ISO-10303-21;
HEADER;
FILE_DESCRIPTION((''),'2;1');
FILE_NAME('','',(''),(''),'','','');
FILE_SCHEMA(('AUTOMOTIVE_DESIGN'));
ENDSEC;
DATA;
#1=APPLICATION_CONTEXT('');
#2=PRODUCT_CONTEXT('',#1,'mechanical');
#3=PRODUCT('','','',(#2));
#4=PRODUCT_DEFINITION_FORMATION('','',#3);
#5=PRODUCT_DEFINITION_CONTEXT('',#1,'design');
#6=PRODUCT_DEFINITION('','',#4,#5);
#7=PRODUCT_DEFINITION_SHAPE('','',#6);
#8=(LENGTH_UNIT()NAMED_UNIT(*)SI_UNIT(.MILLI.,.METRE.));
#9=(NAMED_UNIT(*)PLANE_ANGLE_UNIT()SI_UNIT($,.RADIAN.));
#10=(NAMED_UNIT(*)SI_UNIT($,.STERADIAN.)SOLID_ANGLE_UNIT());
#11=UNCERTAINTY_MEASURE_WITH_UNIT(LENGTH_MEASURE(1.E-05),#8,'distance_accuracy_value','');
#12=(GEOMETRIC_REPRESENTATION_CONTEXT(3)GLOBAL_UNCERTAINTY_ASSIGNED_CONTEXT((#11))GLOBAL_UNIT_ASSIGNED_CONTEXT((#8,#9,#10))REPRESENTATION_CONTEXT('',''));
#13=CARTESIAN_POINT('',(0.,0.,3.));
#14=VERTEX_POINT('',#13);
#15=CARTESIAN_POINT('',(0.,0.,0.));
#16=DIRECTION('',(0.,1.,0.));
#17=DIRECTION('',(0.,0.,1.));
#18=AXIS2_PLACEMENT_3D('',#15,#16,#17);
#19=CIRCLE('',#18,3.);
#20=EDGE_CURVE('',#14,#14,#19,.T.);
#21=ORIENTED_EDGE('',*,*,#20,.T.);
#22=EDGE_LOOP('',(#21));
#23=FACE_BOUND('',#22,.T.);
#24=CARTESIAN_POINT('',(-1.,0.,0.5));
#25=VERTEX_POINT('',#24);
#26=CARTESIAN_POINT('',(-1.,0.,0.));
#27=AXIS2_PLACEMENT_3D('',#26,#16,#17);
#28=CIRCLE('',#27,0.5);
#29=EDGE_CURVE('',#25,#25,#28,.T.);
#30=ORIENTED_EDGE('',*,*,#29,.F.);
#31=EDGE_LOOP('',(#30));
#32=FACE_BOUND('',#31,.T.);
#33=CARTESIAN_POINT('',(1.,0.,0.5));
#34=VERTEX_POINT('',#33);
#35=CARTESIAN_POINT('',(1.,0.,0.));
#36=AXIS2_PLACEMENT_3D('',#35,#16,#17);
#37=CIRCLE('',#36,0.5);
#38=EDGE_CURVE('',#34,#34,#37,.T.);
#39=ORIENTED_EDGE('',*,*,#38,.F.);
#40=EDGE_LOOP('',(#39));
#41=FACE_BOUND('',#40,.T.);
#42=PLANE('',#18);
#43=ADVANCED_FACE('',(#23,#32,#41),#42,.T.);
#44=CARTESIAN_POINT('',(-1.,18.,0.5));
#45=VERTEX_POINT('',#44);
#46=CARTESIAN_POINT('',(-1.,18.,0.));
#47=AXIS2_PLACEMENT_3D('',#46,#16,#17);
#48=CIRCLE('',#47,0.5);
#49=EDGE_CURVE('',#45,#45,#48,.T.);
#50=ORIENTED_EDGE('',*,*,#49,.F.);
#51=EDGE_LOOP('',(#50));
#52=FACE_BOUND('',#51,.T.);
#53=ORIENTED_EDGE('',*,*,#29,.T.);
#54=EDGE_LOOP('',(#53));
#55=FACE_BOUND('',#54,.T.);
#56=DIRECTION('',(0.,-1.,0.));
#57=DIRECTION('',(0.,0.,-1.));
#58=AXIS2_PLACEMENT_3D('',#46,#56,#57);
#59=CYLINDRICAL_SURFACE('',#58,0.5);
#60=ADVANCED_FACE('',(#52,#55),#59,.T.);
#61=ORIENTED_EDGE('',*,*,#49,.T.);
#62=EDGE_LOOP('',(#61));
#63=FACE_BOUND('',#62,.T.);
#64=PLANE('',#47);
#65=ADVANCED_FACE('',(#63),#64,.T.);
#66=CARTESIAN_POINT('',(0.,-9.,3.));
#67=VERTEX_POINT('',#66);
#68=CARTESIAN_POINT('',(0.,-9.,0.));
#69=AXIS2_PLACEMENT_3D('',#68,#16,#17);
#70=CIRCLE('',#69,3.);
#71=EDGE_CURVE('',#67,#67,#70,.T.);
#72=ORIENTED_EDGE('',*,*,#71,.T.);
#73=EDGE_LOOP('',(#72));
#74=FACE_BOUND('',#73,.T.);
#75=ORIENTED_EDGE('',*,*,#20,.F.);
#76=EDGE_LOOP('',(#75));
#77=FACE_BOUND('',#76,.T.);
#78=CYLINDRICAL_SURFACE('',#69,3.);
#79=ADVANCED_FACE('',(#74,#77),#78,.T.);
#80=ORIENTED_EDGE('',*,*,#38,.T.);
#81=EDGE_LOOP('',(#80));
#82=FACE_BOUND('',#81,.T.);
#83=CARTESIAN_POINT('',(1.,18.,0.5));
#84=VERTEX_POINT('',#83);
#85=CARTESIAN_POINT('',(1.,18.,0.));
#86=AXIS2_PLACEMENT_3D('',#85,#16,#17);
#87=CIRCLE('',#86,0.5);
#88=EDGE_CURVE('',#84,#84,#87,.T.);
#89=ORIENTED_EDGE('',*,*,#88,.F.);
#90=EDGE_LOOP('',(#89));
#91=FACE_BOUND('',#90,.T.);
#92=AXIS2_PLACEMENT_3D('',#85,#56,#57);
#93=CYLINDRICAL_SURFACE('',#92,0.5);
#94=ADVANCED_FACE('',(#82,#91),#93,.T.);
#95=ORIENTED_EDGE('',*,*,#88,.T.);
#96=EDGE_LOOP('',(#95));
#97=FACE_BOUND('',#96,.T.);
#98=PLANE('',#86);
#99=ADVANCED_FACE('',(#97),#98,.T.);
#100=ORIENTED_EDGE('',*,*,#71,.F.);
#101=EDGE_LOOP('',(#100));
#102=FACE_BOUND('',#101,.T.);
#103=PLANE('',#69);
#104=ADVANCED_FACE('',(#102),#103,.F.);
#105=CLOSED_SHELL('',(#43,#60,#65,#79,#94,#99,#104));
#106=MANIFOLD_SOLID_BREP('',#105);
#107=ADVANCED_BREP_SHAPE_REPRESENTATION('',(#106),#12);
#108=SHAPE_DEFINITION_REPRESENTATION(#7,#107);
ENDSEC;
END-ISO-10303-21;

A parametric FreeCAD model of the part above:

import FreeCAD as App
import Part
import Sketcher
from FreeCAD import Vector
Q = App.Units.Quantity

doc = App.newDocument("Part")
body = doc.addObject("PartDesign::Body", "Body")

# Sketch on XZ plane
sketch1 = body.newObject("Sketcher::SketchObject", "Sketch")
sketch1.AttachmentSupport = (doc.getObject("XZ_Plane"), [""])
sketch1.MapMode = "FlatFace"
sketch1.addGeometry(Part.Circle(Vector(0, 0, 0), Vector(0, 0, 1), 3), False)
sketch1.addConstraint([
    Sketcher.Constraint("Coincident", 0, 3, -1, 1),
    Sketcher.Constraint("Diameter", 0, Q("6 mm")),
])
pad1 = body.newObject("PartDesign::Pad", "Pad")
pad1.Profile = sketch1
pad1.Length = 9

# Sketch on XZ plane
sketch2 = body.newObject("Sketcher::SketchObject", "Sketch001")
sketch2.AttachmentSupport = (doc.getObject("XZ_Plane"), [""])
sketch2.MapMode = "FlatFace"
sketch2.addGeometry([
    Part.Circle(Vector(-1, 0, 0), Vector(0, 0, 1), 0.5),
    Part.Circle(Vector(1, 0, 0), Vector(0, 0, 1), 0.5),
], False)
sketch2.addConstraint([
    Sketcher.Constraint("Equal", 0, 1),
    Sketcher.Constraint("Symmetric", 0, 3, 1, 3, -1, 1),
    Sketcher.Constraint("PointOnObject", 0, 3, -1),
    Sketcher.Constraint("Diameter", 0, Q("1 mm")),
    Sketcher.Constraint("DistanceX", 0, 3, -1, 1, Q("1 mm")),
])
pad2 = body.newObject("PartDesign::Pad", "Pad001")
pad2.Profile = sketch2
pad2.Length = 18
pad2.Reversed = True

doc.recompute()
